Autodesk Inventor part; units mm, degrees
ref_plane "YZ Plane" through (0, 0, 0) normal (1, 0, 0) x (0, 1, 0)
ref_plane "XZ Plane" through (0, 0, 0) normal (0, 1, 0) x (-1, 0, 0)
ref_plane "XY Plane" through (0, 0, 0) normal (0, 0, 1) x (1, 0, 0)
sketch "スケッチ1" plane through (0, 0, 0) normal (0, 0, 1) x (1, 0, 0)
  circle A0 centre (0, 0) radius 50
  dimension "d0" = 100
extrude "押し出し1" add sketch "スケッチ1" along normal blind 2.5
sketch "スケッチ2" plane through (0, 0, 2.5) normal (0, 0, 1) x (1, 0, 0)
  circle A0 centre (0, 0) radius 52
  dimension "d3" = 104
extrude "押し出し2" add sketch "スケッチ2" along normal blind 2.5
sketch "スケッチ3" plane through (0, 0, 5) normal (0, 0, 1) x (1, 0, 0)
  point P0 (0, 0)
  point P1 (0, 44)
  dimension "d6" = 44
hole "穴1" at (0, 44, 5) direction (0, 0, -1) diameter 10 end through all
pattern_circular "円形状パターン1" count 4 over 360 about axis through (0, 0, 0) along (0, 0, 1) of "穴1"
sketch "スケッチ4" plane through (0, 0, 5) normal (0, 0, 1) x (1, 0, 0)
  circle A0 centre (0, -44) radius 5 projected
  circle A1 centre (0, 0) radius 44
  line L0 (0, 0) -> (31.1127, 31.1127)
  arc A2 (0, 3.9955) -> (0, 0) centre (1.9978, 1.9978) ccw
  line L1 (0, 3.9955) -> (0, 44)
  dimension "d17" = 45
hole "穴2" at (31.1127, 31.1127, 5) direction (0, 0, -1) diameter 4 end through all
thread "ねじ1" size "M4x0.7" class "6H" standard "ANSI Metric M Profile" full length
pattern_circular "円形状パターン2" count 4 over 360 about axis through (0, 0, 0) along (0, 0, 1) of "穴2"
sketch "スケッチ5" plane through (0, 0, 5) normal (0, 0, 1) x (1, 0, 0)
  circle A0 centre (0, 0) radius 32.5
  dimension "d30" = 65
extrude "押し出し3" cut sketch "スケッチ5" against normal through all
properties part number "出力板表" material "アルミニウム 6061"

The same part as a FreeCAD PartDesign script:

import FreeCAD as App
import Part
import Sketcher

doc = App.newDocument("Part")
body = doc.addObject("PartDesign::Body", "Body")

sketch1 = doc.addObject("Sketcher::SketchObject", "Sketch")
body.addObject(sketch1)
sketch1.AttachmentSupport = (doc.XY_Plane, [""])
sketch1.MapMode = "FlatFace"
sketch1.addGeometry(Part.Circle(App.Vector(0, 0, 0), App.Vector(0, 0, 1), 50), False)
sketch1.addConstraint(Sketcher.Constraint("Coincident", 0, 3, -1, 1))
sketch1.addConstraint(Sketcher.Constraint("Diameter", 0, 100.0))
pad1 = doc.addObject("PartDesign::Pad", "Pad")
body.addObject(pad1)
pad1.Profile = sketch1
pad1.Length = 2.5

sketch2 = doc.addObject("Sketcher::SketchObject", "Sketch001")
body.addObject(sketch2)
sketch2.AttachmentSupport = (doc.XY_Plane, [""])
sketch2.MapMode = "FlatFace"
sketch2.AttachmentOffset = App.Placement(App.Vector(0, 0, 2.5), App.Rotation())
sketch2.addGeometry(Part.Circle(App.Vector(0, 0, 0), App.Vector(0, 0, 1), 52), False)
sketch2.addConstraint(Sketcher.Constraint("Coincident", 0, 3, -1, 1))
sketch2.addConstraint(Sketcher.Constraint("Diameter", 0, 104.0))
pad2 = doc.addObject("PartDesign::Pad", "Pad001")
body.addObject(pad2)
pad2.Profile = sketch2
pad2.Length = 2.5

sketch3 = doc.addObject("Sketcher::SketchObject", "Sketch002")
body.addObject(sketch3)
sketch3.AttachmentSupport = (doc.XY_Plane, [""])
sketch3.MapMode = "FlatFace"
sketch3.AttachmentOffset = App.Placement(App.Vector(0, 0, 5), App.Rotation())
sketch3.addGeometry(Part.Circle(App.Vector(0, 44, 0), App.Vector(0, 0, 1), 5), False)
sketch3.addConstraint(Sketcher.Constraint("PointOnObject", 0, 3, -2))
sketch3.addConstraint(Sketcher.Constraint("Diameter", 0, 10.0))
sketch3.addConstraint(Sketcher.Constraint("DistanceY", -1, 1, 0, 3, 44.0))
doc.recompute()
hole = doc.addObject("PartDesign::Hole", "Hole")
body.addObject(hole)
hole.Profile = sketch3
hole.ThreadType = "None"
hole.Diameter = 10
hole.DepthType = "ThroughAll"
doc.recompute()

polarpattern = doc.addObject("PartDesign::PolarPattern", "PolarPattern")
body.addObject(polarpattern)
polarpattern.Originals = [hole]
polarpattern.Axis = (doc.Z_Axis, [""])
polarpattern.Angle = 360
polarpattern.Occurrences = 4
body.Tip = polarpattern

sketch4 = doc.addObject("Sketcher::SketchObject", "Sketch003")
body.addObject(sketch4)
sketch4.AttachmentSupport = (doc.XY_Plane, [""])
sketch4.MapMode = "FlatFace"
sketch4.AttachmentOffset = App.Placement(App.Vector(0, 0, 5), App.Rotation())
sketch4.addGeometry(Part.Circle(App.Vector(31.1127, 31.1127, 0), App.Vector(0, 0, 1), 2), False)
sketch4.addConstraint(Sketcher.Constraint("Diameter", 0, 4.0))
sketch4.addConstraint(Sketcher.Constraint("DistanceX", -1, 1, 0, 3, 31.1127))
sketch4.addConstraint(Sketcher.Constraint("DistanceY", -1, 1, 0, 3, 31.1127))
doc.recompute()
hole2 = doc.addObject("PartDesign::Hole", "Hole001")
body.addObject(hole2)
hole2.Profile = sketch4
hole2.ThreadType = "None"
hole2.Diameter = 4
hole2.DepthType = "ThroughAll"
doc.recompute()

polarpattern2 = doc.addObject("PartDesign::PolarPattern", "PolarPattern001")
body.addObject(polarpattern2)
polarpattern2.Originals = [hole2]
polarpattern2.Axis = (doc.Z_Axis, [""])
polarpattern2.Angle = 360
polarpattern2.Occurrences = 4
body.Tip = polarpattern2

sketch5 = doc.addObject("Sketcher::SketchObject", "Sketch004")
body.addObject(sketch5)
sketch5.AttachmentSupport = (doc.XY_Plane, [""])
sketch5.MapMode = "FlatFace"
sketch5.AttachmentOffset = App.Placement(App.Vector(0, 0, 5), App.Rotation())
sketch5.addGeometry(Part.Circle(App.Vector(0, 0, 0), App.Vector(0, 0, 1), 32.5), False)
sketch5.addConstraint(Sketcher.Constraint("Coincident", 0, 3, -1, 1))
sketch5.addConstraint(Sketcher.Constraint("Diameter", 0, 65.0))
pocket1 = doc.addObject("PartDesign::Pocket", "Pocket")
body.addObject(pocket1)
pocket1.Profile = sketch5
pocket1.Type = "ThroughAll"

doc.recompute()
